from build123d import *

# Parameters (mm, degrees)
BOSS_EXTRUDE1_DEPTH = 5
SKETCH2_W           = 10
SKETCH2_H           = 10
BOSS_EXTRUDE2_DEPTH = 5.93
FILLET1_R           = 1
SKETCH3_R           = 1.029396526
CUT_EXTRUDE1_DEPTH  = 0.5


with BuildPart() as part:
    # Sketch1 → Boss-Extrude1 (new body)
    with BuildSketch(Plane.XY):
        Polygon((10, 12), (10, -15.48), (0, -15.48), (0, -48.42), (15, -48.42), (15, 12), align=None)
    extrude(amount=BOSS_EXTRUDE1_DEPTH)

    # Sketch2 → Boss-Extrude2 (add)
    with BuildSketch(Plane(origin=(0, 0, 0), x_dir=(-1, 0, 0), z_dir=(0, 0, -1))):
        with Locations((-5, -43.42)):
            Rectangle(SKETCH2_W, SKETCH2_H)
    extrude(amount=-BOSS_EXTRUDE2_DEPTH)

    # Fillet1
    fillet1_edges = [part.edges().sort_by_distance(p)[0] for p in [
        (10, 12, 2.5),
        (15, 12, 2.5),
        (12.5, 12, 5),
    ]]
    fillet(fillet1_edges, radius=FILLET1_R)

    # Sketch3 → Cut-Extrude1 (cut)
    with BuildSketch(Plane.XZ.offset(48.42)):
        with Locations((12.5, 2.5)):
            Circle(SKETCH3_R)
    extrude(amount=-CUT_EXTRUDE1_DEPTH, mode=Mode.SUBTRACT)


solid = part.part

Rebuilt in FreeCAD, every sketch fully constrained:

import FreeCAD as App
import Part
import Sketcher
Q = App.Units.Quantity


def edges_at(feature, points):
    """Names of the edges that pass closest to the given points."""
    edges = feature.Shape.Edges
    near = lambda p: min(range(len(edges)), key=lambda i: edges[i].distToShape(Part.Vertex(*p))[0])
    return sorted({f"Edge{near(p) + 1}" for p in points})

doc = App.newDocument("Part")
body = doc.addObject("PartDesign::Body", "Body")

# Sketch on XY plane
sketch1 = doc.addObject("Sketcher::SketchObject", "Sketch")
body.addObject(sketch1)
sketch1.AttachmentSupport = (doc.XY_Plane, [""])
sketch1.MapMode = "FlatFace"
sketch1.addGeometry(Part.LineSegment(App.Vector(10, 12, 0), App.Vector(10, -15, 0)), False)
sketch1.addGeometry(Part.LineSegment(App.Vector(10, -15, 0), App.Vector(0, -15, 0)), False)
sketch1.addGeometry(Part.LineSegment(App.Vector(0, -15, 0), App.Vector(0, -48, 0)), False)
sketch1.addGeometry(Part.LineSegment(App.Vector(0, -48, 0), App.Vector(15, -48, 0)), False)
sketch1.addGeometry(Part.LineSegment(App.Vector(15, -48, 0), App.Vector(15, 12, 0)), False)
sketch1.addGeometry(Part.LineSegment(App.Vector(15, 12, 0), App.Vector(10, 12, 0)), False)
sketch1.addConstraint(Sketcher.Constraint("Coincident", 0, 2, 1, 1))
sketch1.addConstraint(Sketcher.Constraint("Coincident", 1, 2, 2, 1))
sketch1.addConstraint(Sketcher.Constraint("Coincident", 2, 2, 3, 1))
sketch1.addConstraint(Sketcher.Constraint("Coincident", 3, 2, 4, 1))
sketch1.addConstraint(Sketcher.Constraint("Coincident", 4, 2, 5, 1))
sketch1.addConstraint(Sketcher.Constraint("Coincident", 5, 2, 0, 1))
sketch1.addConstraint(Sketcher.Constraint("Vertical", 0))
sketch1.addConstraint(Sketcher.Constraint("Horizontal", 1))
sketch1.addConstraint(Sketcher.Constraint("Vertical", 2))
sketch1.addConstraint(Sketcher.Constraint("Horizontal", 3))
sketch1.addConstraint(Sketcher.Constraint("Vertical", 4))
sketch1.addConstraint(Sketcher.Constraint("Horizontal", 5))
sketch1.addConstraint(Sketcher.Constraint("PointOnObject", 1, 2, -2))
sketch1.addConstraint(Sketcher.Constraint("DistanceX", 1, 2, 1, 1, Q("10 mm")))
sketch1.addConstraint(Sketcher.Constraint("DistanceX", 3, 1, 3, 2, Q("15 mm")))
sketch1.addConstraint(Sketcher.Constraint("DistanceY", -1, 1, 4, 2, Q("12 mm")))
sketch1.addConstraint(Sketcher.Constraint("DistanceY", 0, 2, 0, 1, Q("27.48 mm")))
sketch1.addConstraint(Sketcher.Constraint("DistanceY", 2, 2, 2, 1, Q("32.94 mm")))
pad1 = doc.addObject("PartDesign::Pad", "Pad")
body.addObject(pad1)
pad1.Profile = sketch1
pad1.Length = 5

# Sketch on XY plane
sketch2 = doc.addObject("Sketcher::SketchObject", "Sketch001")
body.addObject(sketch2)
sketch2.AttachmentSupport = (doc.XY_Plane, [""])
sketch2.MapMode = "FlatFace"
sketch2.addGeometry(Part.LineSegment(App.Vector(10, -38, 0), App.Vector(10, -48, 0)), False)
sketch2.addGeometry(Part.LineSegment(App.Vector(10, -48, 0), App.Vector(0, -48, 0)), False)
sketch2.addGeometry(Part.LineSegment(App.Vector(0, -48, 0), App.Vector(0, -38, 0)), False)
sketch2.addGeometry(Part.LineSegment(App.Vector(0, -38, 0), App.Vector(10, -38, 0)), False)
sketch2.addConstraint(Sketcher.Constraint("Coincident", 0, 2, 1, 1))
sketch2.addConstraint(Sketcher.Constraint("Coincident", 1, 2, 2, 1))
sketch2.addConstraint(Sketcher.Constraint("Coincident", 2, 2, 3, 1))
sketch2.addConstraint(Sketcher.Constraint("Coincident", 3, 2, 0, 1))
sketch2.addConstraint(Sketcher.Constraint("Vertical", 0))
sketch2.addConstraint(Sketcher.Constraint("Horizontal", 1))
sketch2.addConstraint(Sketcher.Constraint("Vertical", 2))
sketch2.addConstraint(Sketcher.Constraint("Horizontal", 3))
sketch2.addConstraint(Sketcher.Constraint("PointOnObject", 1, 2, -2))
sketch2.addConstraint(Sketcher.Constraint("Equal", 3, 0))
sketch2.addConstraint(Sketcher.Constraint("DistanceX", 1, 2, 1, 1, Q("10 mm")))
sketch2.addConstraint(Sketcher.Constraint("DistanceY", 0, 2, -1, 1, Q("48.42 mm")))
pad2 = doc.addObject("PartDesign::Pad", "Pad001")
body.addObject(pad2)
pad2.Profile = sketch2
pad2.Length = 5.93
doc.recompute()

fillet = doc.addObject("PartDesign::Fillet", "Fillet")
body.addObject(fillet)
fillet.Base = (pad2, edges_at(pad2, [(10, 12, 2.5), (15, 12, 2.5), (12.5, 12, 5)]))
fillet.Radius = 1

# Sketch on XZ plane
sketch3 = doc.addObject("Sketcher::SketchObject", "Sketch002")
body.addObject(sketch3)
sketch3.AttachmentSupport = (doc.XZ_Plane, [""])
sketch3.MapMode = "FlatFace"
sketch3.AttachmentOffset = App.Placement(App.Vector(0, 0, 48.42), App.Rotation())
sketch3.addGeometry(Part.Circle(App.Vector(12.5, 2.5, 0), App.Vector(0, 0, 1), 1), False)
sketch3.addConstraint(Sketcher.Constraint("DistanceX", -1, 1, 0, 3, Q("12.5 mm")))
sketch3.addConstraint(Sketcher.Constraint("DistanceY", -1, 1, 0, 3, Q("2.5 mm")))
sketch3.addConstraint(Sketcher.Constraint("Diameter", 0, Q("2.058793 mm")))
pocket1 = doc.addObject("PartDesign::Pocket", "Pocket")
body.addObject(pocket1)
pocket1.Profile = sketch3
pocket1.Length = 0.5

doc.recompute()
